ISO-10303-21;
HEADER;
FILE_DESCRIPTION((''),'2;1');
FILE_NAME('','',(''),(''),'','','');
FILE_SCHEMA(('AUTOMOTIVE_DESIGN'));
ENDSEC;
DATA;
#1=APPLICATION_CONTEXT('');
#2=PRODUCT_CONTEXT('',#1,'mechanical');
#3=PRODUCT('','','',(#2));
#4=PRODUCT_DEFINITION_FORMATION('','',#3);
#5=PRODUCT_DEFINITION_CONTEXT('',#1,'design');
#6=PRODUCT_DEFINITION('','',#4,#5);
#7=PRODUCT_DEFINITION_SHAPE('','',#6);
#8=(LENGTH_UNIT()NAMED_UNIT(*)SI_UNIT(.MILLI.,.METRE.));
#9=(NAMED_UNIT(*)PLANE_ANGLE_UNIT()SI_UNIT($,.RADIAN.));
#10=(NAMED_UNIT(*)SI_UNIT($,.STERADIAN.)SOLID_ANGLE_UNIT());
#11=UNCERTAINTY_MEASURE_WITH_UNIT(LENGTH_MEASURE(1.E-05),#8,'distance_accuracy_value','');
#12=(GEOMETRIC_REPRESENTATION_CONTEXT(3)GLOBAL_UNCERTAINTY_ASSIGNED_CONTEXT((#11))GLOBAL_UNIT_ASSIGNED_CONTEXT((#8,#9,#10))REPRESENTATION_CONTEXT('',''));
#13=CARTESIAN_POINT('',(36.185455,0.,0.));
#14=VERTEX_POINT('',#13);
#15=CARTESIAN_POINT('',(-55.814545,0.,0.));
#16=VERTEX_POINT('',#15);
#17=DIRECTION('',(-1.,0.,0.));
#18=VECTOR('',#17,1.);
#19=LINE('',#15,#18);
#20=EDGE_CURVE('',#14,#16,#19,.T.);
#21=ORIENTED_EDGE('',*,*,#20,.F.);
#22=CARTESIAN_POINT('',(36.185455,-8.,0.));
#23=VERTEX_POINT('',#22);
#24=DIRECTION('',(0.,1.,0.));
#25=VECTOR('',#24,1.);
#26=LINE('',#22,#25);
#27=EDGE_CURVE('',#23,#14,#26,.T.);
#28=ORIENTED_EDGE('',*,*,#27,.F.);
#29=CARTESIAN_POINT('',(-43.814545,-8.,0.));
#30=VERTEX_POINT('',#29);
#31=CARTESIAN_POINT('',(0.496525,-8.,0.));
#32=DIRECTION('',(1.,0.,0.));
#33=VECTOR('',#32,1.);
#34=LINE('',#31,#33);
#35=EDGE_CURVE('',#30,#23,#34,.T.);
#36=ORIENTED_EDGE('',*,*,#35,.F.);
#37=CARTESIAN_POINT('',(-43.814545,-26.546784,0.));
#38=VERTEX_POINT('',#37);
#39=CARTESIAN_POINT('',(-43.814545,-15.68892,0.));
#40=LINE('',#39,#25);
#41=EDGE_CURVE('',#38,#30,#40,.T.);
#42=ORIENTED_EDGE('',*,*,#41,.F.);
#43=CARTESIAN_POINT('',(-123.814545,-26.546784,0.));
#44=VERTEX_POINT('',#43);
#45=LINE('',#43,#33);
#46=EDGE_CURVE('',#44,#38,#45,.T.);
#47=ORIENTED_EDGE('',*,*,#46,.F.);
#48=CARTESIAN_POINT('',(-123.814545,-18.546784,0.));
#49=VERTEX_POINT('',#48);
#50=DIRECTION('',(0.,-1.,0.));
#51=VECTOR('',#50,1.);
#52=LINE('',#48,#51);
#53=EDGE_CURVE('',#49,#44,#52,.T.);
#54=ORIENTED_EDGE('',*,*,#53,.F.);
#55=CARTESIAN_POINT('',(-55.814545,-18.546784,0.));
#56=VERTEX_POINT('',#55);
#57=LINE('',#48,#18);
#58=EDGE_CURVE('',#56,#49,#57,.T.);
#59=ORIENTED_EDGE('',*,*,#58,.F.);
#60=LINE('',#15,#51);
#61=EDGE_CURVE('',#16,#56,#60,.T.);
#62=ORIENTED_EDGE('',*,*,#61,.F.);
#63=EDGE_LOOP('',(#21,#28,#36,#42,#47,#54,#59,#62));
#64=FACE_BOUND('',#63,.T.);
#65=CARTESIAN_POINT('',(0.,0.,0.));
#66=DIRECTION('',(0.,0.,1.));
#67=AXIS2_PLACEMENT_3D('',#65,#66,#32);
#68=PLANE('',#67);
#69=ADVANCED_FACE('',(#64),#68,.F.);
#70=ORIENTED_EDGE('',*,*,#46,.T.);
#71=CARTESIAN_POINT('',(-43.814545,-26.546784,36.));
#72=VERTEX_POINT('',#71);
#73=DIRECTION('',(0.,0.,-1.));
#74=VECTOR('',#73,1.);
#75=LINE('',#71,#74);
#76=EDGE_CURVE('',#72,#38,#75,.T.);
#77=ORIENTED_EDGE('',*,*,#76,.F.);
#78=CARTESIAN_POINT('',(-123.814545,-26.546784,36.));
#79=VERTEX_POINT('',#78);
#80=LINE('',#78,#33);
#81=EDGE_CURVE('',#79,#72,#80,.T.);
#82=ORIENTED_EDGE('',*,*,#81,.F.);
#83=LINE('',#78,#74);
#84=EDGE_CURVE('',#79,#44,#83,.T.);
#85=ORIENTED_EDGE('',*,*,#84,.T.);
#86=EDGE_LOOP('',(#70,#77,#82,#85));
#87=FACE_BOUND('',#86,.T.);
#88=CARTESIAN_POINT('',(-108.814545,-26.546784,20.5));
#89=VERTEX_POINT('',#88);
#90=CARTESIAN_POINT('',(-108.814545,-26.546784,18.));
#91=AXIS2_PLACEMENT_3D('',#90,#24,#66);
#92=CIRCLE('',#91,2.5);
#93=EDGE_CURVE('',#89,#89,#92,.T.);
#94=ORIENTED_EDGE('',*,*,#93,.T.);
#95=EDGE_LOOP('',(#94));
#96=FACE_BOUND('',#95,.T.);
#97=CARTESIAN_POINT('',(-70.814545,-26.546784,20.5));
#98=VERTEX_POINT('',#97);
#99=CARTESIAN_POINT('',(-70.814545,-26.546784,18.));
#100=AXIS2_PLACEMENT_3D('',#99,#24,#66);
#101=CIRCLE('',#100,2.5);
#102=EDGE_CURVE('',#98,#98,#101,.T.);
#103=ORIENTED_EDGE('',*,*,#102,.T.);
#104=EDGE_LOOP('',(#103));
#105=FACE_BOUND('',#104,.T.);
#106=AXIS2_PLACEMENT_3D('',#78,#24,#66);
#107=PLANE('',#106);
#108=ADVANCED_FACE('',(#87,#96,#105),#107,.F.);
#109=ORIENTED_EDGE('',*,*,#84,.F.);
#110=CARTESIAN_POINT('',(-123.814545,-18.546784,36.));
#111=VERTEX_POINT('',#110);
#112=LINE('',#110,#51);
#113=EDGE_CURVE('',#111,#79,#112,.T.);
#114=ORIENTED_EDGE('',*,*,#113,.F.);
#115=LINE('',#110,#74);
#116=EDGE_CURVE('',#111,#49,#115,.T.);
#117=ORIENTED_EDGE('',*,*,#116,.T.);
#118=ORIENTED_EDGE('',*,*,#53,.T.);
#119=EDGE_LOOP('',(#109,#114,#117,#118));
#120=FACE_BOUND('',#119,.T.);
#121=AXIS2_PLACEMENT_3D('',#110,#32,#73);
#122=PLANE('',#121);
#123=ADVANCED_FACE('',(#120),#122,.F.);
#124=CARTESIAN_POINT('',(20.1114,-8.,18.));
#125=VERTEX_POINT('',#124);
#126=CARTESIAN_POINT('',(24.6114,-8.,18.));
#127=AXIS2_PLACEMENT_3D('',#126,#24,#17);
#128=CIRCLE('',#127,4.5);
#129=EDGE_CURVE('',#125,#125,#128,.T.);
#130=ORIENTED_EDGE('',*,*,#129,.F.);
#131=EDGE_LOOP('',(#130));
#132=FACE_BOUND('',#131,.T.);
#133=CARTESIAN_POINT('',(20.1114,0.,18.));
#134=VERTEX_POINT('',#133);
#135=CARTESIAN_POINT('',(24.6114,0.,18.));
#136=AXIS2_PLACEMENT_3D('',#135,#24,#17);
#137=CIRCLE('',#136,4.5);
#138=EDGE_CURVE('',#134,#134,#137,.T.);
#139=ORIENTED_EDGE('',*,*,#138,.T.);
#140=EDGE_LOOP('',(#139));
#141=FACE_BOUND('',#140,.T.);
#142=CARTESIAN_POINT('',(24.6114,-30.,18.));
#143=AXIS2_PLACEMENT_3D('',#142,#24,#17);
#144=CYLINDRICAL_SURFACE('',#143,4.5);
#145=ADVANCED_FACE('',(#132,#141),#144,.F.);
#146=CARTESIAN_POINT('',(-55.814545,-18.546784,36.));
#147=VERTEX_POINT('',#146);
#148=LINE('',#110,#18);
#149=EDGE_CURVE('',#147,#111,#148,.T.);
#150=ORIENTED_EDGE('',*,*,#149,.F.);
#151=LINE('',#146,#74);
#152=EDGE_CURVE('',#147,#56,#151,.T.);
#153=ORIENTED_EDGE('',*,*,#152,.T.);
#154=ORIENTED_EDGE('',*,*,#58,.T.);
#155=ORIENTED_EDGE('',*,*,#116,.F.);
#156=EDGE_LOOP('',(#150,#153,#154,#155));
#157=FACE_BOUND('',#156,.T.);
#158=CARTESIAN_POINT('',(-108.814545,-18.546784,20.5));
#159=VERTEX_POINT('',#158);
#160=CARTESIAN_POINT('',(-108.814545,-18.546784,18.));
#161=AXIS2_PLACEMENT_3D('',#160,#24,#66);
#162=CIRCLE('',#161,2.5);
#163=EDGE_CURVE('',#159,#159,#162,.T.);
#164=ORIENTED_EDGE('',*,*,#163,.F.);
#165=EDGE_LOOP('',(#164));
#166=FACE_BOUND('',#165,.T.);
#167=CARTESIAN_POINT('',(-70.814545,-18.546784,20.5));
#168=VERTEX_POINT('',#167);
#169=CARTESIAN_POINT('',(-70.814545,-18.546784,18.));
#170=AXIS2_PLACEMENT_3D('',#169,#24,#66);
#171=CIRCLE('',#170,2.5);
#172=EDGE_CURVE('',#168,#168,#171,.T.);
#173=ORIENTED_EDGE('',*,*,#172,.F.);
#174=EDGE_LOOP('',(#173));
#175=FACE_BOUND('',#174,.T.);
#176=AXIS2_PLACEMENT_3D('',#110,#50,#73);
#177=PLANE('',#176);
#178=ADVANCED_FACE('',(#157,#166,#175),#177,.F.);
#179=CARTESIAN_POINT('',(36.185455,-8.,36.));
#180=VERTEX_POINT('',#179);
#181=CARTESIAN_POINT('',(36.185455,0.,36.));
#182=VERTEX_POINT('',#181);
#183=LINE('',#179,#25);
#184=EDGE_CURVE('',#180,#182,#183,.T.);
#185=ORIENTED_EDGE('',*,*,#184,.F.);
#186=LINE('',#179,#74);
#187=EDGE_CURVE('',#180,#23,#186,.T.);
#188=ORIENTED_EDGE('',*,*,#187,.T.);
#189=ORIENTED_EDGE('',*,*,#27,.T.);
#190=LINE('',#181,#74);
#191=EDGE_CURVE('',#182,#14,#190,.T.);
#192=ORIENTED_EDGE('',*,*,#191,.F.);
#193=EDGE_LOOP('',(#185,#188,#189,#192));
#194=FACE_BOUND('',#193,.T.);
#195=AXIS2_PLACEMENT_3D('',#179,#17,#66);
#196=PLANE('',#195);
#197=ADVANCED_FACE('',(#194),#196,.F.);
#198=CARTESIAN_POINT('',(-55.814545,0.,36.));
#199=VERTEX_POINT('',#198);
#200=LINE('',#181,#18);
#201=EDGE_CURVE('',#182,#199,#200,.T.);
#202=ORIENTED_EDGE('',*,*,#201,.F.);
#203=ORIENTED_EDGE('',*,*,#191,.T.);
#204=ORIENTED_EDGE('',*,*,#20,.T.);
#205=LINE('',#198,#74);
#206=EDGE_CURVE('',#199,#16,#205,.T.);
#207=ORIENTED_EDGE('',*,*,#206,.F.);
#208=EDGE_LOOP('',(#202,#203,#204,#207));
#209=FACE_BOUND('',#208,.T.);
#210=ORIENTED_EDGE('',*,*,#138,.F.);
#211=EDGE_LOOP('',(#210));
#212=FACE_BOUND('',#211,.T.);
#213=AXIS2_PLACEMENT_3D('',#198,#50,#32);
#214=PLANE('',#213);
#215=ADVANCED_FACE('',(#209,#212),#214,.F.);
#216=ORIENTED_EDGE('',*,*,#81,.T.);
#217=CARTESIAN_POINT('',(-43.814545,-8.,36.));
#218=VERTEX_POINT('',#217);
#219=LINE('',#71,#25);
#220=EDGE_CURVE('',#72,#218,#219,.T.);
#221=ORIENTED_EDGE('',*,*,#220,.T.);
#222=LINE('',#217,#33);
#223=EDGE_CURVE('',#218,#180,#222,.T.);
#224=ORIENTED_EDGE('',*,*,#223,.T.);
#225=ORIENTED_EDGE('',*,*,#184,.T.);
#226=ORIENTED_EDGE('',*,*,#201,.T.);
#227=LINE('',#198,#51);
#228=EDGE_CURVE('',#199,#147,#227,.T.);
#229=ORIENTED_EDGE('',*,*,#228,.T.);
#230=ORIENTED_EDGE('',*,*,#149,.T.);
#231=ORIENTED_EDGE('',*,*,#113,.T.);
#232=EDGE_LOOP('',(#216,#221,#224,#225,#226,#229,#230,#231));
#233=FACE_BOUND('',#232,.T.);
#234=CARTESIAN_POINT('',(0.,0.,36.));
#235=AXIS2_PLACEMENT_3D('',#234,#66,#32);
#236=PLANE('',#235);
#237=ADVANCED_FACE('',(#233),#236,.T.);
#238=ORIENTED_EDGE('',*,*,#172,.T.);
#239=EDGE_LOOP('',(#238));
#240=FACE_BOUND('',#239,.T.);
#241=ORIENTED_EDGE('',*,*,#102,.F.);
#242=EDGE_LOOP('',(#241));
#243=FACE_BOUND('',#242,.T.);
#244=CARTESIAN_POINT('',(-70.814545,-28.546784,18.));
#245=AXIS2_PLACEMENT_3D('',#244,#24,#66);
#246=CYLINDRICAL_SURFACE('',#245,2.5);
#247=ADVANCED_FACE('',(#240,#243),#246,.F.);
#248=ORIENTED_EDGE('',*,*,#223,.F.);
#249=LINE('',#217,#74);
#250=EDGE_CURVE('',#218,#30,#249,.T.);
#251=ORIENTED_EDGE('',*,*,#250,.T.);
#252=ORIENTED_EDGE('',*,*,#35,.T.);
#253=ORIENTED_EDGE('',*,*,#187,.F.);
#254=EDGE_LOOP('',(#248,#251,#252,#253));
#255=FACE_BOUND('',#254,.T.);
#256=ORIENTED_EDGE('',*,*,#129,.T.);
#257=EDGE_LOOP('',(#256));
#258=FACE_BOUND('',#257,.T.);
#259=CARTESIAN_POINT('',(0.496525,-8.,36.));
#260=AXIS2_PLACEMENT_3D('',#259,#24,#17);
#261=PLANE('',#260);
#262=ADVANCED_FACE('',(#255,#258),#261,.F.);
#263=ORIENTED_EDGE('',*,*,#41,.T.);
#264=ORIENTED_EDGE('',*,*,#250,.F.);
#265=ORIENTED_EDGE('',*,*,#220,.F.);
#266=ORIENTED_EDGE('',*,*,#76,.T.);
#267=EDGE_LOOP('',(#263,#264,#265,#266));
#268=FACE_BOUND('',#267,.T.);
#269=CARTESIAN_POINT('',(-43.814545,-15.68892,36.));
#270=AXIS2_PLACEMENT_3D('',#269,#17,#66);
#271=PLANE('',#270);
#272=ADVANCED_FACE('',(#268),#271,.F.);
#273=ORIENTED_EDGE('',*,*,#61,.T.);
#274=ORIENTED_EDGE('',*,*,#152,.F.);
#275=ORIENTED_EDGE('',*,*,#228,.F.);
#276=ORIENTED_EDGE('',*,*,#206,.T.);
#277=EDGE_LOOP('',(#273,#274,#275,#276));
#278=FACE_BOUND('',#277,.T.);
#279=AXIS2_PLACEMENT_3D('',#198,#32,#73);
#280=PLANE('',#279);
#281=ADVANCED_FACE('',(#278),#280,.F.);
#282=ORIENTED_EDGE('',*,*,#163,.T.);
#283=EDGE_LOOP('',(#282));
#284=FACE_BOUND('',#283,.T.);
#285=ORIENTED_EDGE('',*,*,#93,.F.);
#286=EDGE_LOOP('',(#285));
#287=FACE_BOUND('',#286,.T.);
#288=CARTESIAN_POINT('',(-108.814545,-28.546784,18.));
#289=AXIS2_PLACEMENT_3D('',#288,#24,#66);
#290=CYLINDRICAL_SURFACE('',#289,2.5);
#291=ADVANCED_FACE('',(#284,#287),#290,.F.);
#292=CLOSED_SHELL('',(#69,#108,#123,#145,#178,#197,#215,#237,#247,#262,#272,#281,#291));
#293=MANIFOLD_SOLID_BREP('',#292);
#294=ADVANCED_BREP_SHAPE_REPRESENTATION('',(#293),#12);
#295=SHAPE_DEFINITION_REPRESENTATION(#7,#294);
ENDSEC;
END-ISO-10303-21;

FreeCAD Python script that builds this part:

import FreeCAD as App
import Part
import Sketcher

V = App.Vector
Q = App.Units.Quantity


def add_polygon(sketch, points):
    """Adds a closed chain of lines whose ends are joined by coincident constraints."""
    first, n = sketch.GeometryCount, len(points)
    for a, b in zip(points, points[1:] + points[:1]):
        sketch.addGeometry(Part.LineSegment(App.Vector(*a, 0), App.Vector(*b, 0)), False)
    for i in range(n):
        sketch.addConstraint(Sketcher.Constraint("Coincident", first + i, 2, first + (i + 1) % n, 1))

doc = App.newDocument("Part")
body = doc.addObject("PartDesign::Body", "Body")

sketch1 = body.newObject("Sketcher::SketchObject", "Sketch")
sketch1.AttachmentSupport = (doc.getObject("XY_Plane"), [""])
sketch1.MapMode = "FlatFace"
add_polygon(sketch1, [(-124, -27), (-44, -27), (-44, -8), (36, -8), (36, 0), (-56, 0), (-56, -19), (-124, -19)])
sketch1.addConstraint([
    Sketcher.Constraint("Horizontal", 0),
    Sketcher.Constraint("Vertical", 1),
    Sketcher.Constraint("Horizontal", 2),
    Sketcher.Constraint("Vertical", 3),
    Sketcher.Constraint("Horizontal", 4),
    Sketcher.Constraint("Vertical", 5),
    Sketcher.Constraint("Horizontal", 6),
    Sketcher.Constraint("Vertical", 7),
    Sketcher.Constraint("PointOnObject", 3, 2, -1),
    Sketcher.Constraint("Equal", 0, 2),
    Sketcher.Constraint("Equal", 1, 5),
    Sketcher.Constraint("DistanceX", 0, 1, 0, 2, Q("80 mm")),
    Sketcher.Constraint("DistanceX", 4, 2, 4, 1, Q("92 mm")),
    Sketcher.Constraint("DistanceY", 3, 1, 3, 2, Q("8 mm")),
    Sketcher.Constraint("DistanceY", 1, 1, 1, 2, Q("18.546784 mm")),
    Sketcher.Constraint("DistanceX", 0, 2, -1, 1, Q("43.814545 mm")),
])
pad1 = body.newObject("PartDesign::Pad", "Pad")
pad1.Profile = sketch1
pad1.Length = 36

sketch2 = body.newObject("Sketcher::SketchObject", "Sketch001")
sketch2.AttachmentSupport = (doc.getObject("XZ_Plane"), [""])
sketch2.MapMode = "FlatFace"
sketch2.addGeometry(Part.Circle(V(24.6, 18, 0), V(0, 0, 1), 4.5), False)
sketch2.addConstraint([
    Sketcher.Constraint("Diameter", 0, Q("9 mm")),
    Sketcher.Constraint("DistanceY", -1, 1, 0, 3, Q("18 mm")),
    Sketcher.Constraint("DistanceX", -1, 1, 0, 3, Q("24.6114 mm")),
])
pocket1 = body.newObject("PartDesign::Pocket", "Pocket")
pocket1.Profile = sketch2
pocket1.Length = 30
pocket1.Reversed = True

sketch3 = body.newObject("Sketcher::SketchObject", "Sketch002")
sketch3.AttachmentSupport = (doc.getObject("XZ_Plane"), [""])
sketch3.MapMode = "FlatFace"
sketch3.AttachmentOffset = App.Placement(V(0, 0, 18.546784), App.Rotation())
sketch3.addGeometry([
    Part.Circle(V(-108.8, 18, 0), V(0, 0, 1), 2.5),
    Part.Circle(V(-70.8, 18, 0), V(0, 0, 1), 2.5),
], False)
sketch3.addConstraint([
    Sketcher.Constraint("Equal", 0, 1),
    Sketcher.Constraint("Horizontal", 0, 3, 1, 3),
    Sketcher.Constraint("Diameter", 0, Q("5 mm")),
    Sketcher.Constraint("DistanceY", -1, 1, 0, 3, Q("18 mm")),
    Sketcher.Constraint("DistanceX", 0, 3, 1, 3, Q("38 mm")),
    Sketcher.Constraint("DistanceX", 0, 3, -1, 1, Q("108.814545 mm")),
])
pocket2 = body.newObject("PartDesign::Pocket", "Pocket001")
pocket2.Profile = sketch3
pocket2.Length = 10
pocket2.Reversed = True

doc.recompute()
